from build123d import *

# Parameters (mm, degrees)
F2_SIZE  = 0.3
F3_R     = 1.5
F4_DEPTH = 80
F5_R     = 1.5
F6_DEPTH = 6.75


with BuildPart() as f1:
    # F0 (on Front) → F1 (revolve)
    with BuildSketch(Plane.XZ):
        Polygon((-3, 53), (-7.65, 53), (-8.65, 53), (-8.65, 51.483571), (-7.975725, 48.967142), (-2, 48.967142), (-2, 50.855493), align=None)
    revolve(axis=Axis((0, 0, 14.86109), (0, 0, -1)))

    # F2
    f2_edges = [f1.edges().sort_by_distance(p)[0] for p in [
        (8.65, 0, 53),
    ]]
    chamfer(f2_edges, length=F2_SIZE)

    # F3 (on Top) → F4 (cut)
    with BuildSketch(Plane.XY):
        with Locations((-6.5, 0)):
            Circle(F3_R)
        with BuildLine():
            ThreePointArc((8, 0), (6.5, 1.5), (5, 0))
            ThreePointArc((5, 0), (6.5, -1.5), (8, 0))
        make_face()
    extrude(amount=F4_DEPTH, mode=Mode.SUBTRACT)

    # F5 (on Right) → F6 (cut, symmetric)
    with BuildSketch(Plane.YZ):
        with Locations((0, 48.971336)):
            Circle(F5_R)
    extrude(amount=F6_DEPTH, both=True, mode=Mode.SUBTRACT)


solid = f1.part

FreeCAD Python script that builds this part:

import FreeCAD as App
import Part
import Sketcher
from FreeCAD import Vector
Q = App.Units.Quantity


def edges_at(feature, points):
    """Names of the edges that pass closest to the given points."""
    edges = feature.Shape.Edges
    near = lambda p: min(range(len(edges)), key=lambda i: edges[i].distToShape(Part.Vertex(*p))[0])
    return sorted({f"Edge{near(p) + 1}" for p in points})

doc = App.newDocument("Part")
body = doc.addObject("PartDesign::Body", "Body")

sketch1 = body.newObject("Sketcher::SketchObject", "Sketch")
sketch1.AttachmentSupport = (doc.getObject("XZ_Plane"), [""])
sketch1.MapMode = "FlatFace"
sketch1.addGeometry(Part.LineSegment(Vector(-3, 53, 0), Vector(-8.65, 53, 0)), False)
sketch1.addGeometry(Part.LineSegment(Vector(-8.65, 53, 0), Vector(-8.65, 51.483571, 0)), False)
sketch1.addGeometry(Part.LineSegment(Vector(-8.65, 51.483571, 0), Vector(-7.975725, 48.967142, 0)), False)
sketch1.addGeometry(Part.LineSegment(Vector(-7.975725, 48.967142, 0), Vector(-2, 48.967142, 0)), False)
sketch1.addGeometry(Part.LineSegment(Vector(-2, 48.967142, 0), Vector(-2, 50.855493, 0)), False)
sketch1.addGeometry(Part.LineSegment(Vector(-2, 50.855493, 0), Vector(-3, 53, 0)), False)
sketch1.addConstraint(Sketcher.Constraint("Coincident", 0, 2, 1, 1))
sketch1.addConstraint(Sketcher.Constraint("Coincident", 1, 2, 2, 1))
sketch1.addConstraint(Sketcher.Constraint("Coincident", 2, 2, 3, 1))
sketch1.addConstraint(Sketcher.Constraint("Coincident", 3, 2, 4, 1))
sketch1.addConstraint(Sketcher.Constraint("Coincident", 4, 2, 5, 1))
sketch1.addConstraint(Sketcher.Constraint("Coincident", 5, 2, 0, 1))
sketch1.addConstraint(Sketcher.Constraint("Horizontal", 0))
sketch1.addConstraint(Sketcher.Constraint("Vertical", 1))
sketch1.addConstraint(Sketcher.Constraint("Horizontal", 3))
sketch1.addConstraint(Sketcher.Constraint("Vertical", 4))
sketch1.addConstraint(Sketcher.Constraint("Angle", 2, Q("-75.000003 deg")))
sketch1.addConstraint(Sketcher.Constraint("Angle", 5, Q("114.999999 deg")))
sketch1.addConstraint(Sketcher.Constraint("DistanceY", -1, 1, 0, 2, 53.0))
sketch1.addConstraint(Sketcher.Constraint("DistanceX", 3, 2, -1, 1, 2.0))
sketch1.addConstraint(Sketcher.Constraint("DistanceX", 5, 2, -1, 1, 3.0))
sketch1.addConstraint(Sketcher.Constraint("DistanceX", 0, 2, 0, 1, 5.65))
sketch1.addConstraint(Sketcher.Constraint("Distance", 2, 2.605199))
sketch1.addConstraint(Sketcher.Constraint("DistanceY", 1, 2, 1, 1, 1.516429))
revolution = body.newObject("PartDesign::Revolution", "Revolution")
revolution.Profile = sketch1
revolution.ReferenceAxis = (sketch1, ["V_Axis"])
revolution.Angle = 360
doc.recompute()

chamfer = body.newObject("PartDesign::Chamfer", "Chamfer")
chamfer.Base = (revolution, edges_at(revolution, [(8.65, 0, 53)]))
chamfer.Size = 0.3

sketch2 = body.newObject("Sketcher::SketchObject", "Sketch001")
sketch2.AttachmentSupport = (doc.getObject("XY_Plane"), [""])
sketch2.MapMode = "FlatFace"
sketch2.addGeometry(Part.Circle(Vector(-6.5, 0, 0), Vector(0, 0, 1), 1.5), False)
sketch2.addGeometry(Part.Circle(Vector(6.5, 0, 0), Vector(0, 0, 1), 1.5), False)
sketch2.addConstraint(Sketcher.Constraint("Equal", 0, 1))
sketch2.addConstraint(Sketcher.Constraint("Symmetric", 0, 3, 1, 3, -1, 1))
sketch2.addConstraint(Sketcher.Constraint("PointOnObject", 0, 3, -1))
sketch2.addConstraint(Sketcher.Constraint("Diameter", 0, 3.0))
sketch2.addConstraint(Sketcher.Constraint("DistanceX", 0, 3, 1, 3, 13.0))
pocket1 = body.newObject("PartDesign::Pocket", "Pocket")
pocket1.Profile = sketch2
pocket1.Length = 80
pocket1.Reversed = True

sketch3 = body.newObject("Sketcher::SketchObject", "Sketch002")
sketch3.AttachmentSupport = (doc.getObject("YZ_Plane"), [""])
sketch3.MapMode = "FlatFace"
sketch3.addGeometry(Part.Circle(Vector(0, 48.971336, 0), Vector(0, 0, 1), 1.5), False)
sketch3.addConstraint(Sketcher.Constraint("PointOnObject", 0, 3, -2))
sketch3.addConstraint(Sketcher.Constraint("Diameter", 0, 3.0))
sketch3.addConstraint(Sketcher.Constraint("DistanceY", -1, 1, 0, 3, 48.971336))
pocket2 = body.newObject("PartDesign::Pocket", "Pocket001")
pocket2.Profile = sketch3
pocket2.Length = 13.5
pocket2.Midplane = True

doc.recompute()
